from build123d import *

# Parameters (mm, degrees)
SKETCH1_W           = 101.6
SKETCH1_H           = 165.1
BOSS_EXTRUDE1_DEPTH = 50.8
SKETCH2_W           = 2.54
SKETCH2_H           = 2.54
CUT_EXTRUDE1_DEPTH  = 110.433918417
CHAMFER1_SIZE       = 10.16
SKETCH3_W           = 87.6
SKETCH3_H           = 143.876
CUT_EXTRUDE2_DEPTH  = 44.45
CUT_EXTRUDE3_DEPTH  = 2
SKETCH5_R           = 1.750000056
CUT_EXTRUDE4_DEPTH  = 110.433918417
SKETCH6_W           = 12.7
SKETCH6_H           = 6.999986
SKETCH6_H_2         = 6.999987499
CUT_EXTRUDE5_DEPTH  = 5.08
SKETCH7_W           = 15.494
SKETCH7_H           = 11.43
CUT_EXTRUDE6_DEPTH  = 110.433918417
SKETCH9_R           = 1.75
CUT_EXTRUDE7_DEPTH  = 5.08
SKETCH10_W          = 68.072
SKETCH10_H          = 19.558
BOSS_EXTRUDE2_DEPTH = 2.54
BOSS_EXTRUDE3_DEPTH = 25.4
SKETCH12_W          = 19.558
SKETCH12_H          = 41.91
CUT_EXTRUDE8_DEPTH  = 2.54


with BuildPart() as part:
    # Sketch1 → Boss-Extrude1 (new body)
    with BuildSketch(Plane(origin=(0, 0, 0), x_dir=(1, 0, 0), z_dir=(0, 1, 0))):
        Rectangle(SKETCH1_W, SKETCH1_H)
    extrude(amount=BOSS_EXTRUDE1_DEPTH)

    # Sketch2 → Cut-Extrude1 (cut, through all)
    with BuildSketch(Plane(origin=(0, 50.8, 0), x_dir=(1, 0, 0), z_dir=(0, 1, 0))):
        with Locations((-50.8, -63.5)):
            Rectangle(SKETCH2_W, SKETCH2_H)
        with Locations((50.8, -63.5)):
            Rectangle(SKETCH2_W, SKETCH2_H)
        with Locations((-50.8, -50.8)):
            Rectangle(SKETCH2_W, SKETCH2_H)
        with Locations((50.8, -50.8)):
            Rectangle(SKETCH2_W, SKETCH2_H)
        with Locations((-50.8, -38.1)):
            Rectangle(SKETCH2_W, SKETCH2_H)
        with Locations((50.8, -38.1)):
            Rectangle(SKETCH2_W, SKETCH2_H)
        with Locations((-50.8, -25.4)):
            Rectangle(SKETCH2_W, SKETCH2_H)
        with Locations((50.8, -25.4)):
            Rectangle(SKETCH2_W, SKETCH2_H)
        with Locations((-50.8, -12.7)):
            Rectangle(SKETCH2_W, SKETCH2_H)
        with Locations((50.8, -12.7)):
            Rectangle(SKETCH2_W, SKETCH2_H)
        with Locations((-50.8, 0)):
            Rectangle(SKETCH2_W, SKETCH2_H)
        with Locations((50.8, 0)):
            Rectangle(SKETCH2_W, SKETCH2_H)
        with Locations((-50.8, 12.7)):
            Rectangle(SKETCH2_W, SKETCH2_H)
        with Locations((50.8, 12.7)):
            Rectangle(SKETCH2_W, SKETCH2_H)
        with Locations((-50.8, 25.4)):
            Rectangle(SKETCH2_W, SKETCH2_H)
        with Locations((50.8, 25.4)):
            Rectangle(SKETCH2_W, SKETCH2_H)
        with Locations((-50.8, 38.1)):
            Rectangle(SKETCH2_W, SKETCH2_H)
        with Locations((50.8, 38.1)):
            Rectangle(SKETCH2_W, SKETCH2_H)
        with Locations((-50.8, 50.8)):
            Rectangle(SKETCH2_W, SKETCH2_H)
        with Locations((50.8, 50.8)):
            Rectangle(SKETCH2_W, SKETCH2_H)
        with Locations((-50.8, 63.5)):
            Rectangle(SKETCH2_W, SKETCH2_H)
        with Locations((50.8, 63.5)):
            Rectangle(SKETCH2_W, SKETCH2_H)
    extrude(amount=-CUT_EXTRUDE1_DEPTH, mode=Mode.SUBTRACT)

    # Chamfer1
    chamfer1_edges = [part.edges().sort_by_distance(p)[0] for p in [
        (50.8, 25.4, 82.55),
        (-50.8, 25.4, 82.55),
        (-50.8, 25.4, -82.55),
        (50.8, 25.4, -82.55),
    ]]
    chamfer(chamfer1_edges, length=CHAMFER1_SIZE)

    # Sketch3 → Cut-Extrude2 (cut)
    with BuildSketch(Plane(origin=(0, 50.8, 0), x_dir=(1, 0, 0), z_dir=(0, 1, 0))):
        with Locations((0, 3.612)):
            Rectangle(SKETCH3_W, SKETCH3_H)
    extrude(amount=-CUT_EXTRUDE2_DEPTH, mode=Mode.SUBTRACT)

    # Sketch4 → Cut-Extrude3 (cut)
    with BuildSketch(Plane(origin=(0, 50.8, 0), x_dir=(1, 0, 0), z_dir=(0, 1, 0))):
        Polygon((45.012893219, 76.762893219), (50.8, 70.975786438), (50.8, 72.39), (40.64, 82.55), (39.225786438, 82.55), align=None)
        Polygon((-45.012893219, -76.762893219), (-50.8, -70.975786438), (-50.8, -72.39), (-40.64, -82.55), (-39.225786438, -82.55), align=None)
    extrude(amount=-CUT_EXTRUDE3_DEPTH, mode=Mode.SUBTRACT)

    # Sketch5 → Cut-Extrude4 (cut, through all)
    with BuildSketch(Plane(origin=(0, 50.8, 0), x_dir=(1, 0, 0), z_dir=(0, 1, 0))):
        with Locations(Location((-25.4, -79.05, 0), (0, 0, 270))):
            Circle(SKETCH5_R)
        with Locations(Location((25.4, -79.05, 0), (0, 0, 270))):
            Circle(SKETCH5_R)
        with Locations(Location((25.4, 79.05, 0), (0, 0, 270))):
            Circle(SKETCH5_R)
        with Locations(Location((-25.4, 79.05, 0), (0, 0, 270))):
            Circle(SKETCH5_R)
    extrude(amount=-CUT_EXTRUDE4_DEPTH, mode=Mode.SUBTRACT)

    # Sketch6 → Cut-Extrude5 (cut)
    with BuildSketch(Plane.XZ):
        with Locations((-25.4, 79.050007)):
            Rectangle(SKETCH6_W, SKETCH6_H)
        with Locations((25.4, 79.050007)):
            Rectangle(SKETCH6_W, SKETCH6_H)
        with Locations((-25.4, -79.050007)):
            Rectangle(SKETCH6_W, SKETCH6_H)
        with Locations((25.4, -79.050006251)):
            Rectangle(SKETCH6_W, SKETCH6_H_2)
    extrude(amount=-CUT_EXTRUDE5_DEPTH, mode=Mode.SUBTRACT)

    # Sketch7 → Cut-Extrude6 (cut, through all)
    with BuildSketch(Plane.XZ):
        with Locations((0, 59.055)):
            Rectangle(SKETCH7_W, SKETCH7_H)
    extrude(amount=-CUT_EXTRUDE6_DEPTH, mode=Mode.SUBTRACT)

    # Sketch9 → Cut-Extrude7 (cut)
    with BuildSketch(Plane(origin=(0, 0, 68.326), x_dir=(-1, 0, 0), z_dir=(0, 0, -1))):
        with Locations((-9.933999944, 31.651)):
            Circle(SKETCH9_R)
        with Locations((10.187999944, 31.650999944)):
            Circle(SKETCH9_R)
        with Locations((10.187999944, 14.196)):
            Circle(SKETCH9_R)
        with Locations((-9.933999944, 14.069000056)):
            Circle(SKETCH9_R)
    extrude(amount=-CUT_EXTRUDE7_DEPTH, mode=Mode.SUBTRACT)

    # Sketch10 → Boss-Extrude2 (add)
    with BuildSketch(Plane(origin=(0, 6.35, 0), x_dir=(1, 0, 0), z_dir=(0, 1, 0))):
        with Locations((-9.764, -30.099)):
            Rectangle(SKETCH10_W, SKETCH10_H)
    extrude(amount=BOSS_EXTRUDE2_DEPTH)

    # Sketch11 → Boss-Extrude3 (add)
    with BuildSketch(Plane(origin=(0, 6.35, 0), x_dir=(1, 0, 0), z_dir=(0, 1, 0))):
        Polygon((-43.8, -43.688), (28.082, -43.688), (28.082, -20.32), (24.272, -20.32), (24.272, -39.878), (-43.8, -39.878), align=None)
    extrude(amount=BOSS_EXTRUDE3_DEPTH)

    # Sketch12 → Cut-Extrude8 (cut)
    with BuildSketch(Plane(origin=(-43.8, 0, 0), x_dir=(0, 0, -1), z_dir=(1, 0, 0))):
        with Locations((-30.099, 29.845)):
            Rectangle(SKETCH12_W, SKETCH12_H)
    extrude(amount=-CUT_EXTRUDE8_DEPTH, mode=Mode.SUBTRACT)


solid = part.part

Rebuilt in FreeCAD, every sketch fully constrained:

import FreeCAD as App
import Part
import Sketcher
from FreeCAD import Vector
Q = App.Units.Quantity


def edges_at(feature, points):
    """Names of the edges that pass closest to the given points."""
    edges = feature.Shape.Edges
    near = lambda p: min(range(len(edges)), key=lambda i: edges[i].distToShape(Part.Vertex(*p))[0])
    return sorted({f"Edge{near(p) + 1}" for p in points})


def add_polygon(sketch, points):
    """Adds a closed chain of lines whose ends are joined by coincident constraints."""
    first, n = sketch.GeometryCount, len(points)
    for a, b in zip(points, points[1:] + points[:1]):
        sketch.addGeometry(Part.LineSegment(App.Vector(*a, 0), App.Vector(*b, 0)), False)
    for i in range(n):
        sketch.addConstraint(Sketcher.Constraint("Coincident", first + i, 2, first + (i + 1) % n, 1))

doc = App.newDocument("Part")
body = doc.addObject("PartDesign::Body", "Body")

sketch1 = body.newObject("Sketcher::SketchObject", "Sketch")
sketch1.AttachmentSupport = (doc.getObject("XZ_Plane"), [""])
sketch1.MapMode = "FlatFace"
add_polygon(sketch1, [(-50.8, -82.55), (-50.8, 82.55), (50.8, 82.55), (50.8, -82.55)])
sketch1.addConstraint([
    Sketcher.Constraint("Vertical", 0),
    Sketcher.Constraint("Horizontal", 1),
    Sketcher.Constraint("Vertical", 2),
    Sketcher.Constraint("Horizontal", 3),
    Sketcher.Constraint("Symmetric", 0, 2, 2, 2, -1, 1),
    Sketcher.Constraint("DistanceX", 1, 1, 1, 2, Q("4 in")),
    Sketcher.Constraint("DistanceY", 0, 1, 0, 2, Q("6.5 in")),
])
pad1 = body.newObject("PartDesign::Pad", "Pad")
pad1.Profile = sketch1
pad1.Length = Q("2 in")
pad1.Reversed = True

sketch2 = body.newObject("Sketcher::SketchObject", "Sketch001")
sketch2.AttachmentSupport = (doc.getObject("XZ_Plane"), [""])
sketch2.MapMode = "FlatFace"
sketch2.AttachmentOffset = App.Placement(Vector(0, 0, -2 * 25.4), App.Rotation())
add_polygon(sketch2, [(-52.07, 62.23), (-52.07, 64.77), (-49.53, 64.77), (-49.53, 62.23)])
add_polygon(sketch2, [(49.53, 62.23), (49.53, 64.77), (52.07, 64.77), (52.07, 62.23)])
add_polygon(sketch2, [(-52.07, 49.53), (-52.07, 52.07), (-49.53, 52.07), (-49.53, 49.53)])
add_polygon(sketch2, [(49.53, 49.53), (49.53, 52.07), (52.07, 52.07), (52.07, 49.53)])
add_polygon(sketch2, [(-52.07, 36.83), (-52.07, 39.37), (-49.53, 39.37), (-49.53, 36.83)])
add_polygon(sketch2, [(49.53, 36.83), (49.53, 39.37), (52.07, 39.37), (52.07, 36.83)])
add_polygon(sketch2, [(-52.07, 24.13), (-52.07, 26.67), (-49.53, 26.67), (-49.53, 24.13)])
add_polygon(sketch2, [(49.53, 24.13), (49.53, 26.67), (52.07, 26.67), (52.07, 24.13)])
add_polygon(sketch2, [(-52.07, 11.43), (-52.07, 13.97), (-49.53, 13.97), (-49.53, 11.43)])
add_polygon(sketch2, [(49.53, 11.43), (49.53, 13.97), (52.07, 13.97), (52.07, 11.43)])
add_polygon(sketch2, [(-52.07, -1.27), (-52.07, 1.27), (-49.53, 1.27), (-49.53, -1.27)])
add_polygon(sketch2, [(49.53, -1.27), (49.53, 1.27), (52.07, 1.27), (52.07, -1.27)])
add_polygon(sketch2, [(-52.07, -13.97), (-52.07, -11.43), (-49.53, -11.43), (-49.53, -13.97)])
add_polygon(sketch2, [(49.53, -13.97), (49.53, -11.43), (52.07, -11.43), (52.07, -13.97)])
add_polygon(sketch2, [(-52.07, -26.67), (-52.07, -24.13), (-49.53, -24.13), (-49.53, -26.67)])
add_polygon(sketch2, [(49.53, -26.67), (49.53, -24.13), (52.07, -24.13), (52.07, -26.67)])
add_polygon(sketch2, [(-52.07, -39.37), (-52.07, -36.83), (-49.53, -36.83), (-49.53, -39.37)])
add_polygon(sketch2, [(49.53, -39.37), (49.53, -36.83), (52.07, -36.83), (52.07, -39.37)])
add_polygon(sketch2, [(-52.07, -52.07), (-52.07, -49.53), (-49.53, -49.53), (-49.53, -52.07)])
add_polygon(sketch2, [(49.53, -52.07), (49.53, -49.53), (52.07, -49.53), (52.07, -52.07)])
add_polygon(sketch2, [(-52.07, -64.77), (-52.07, -62.23), (-49.53, -62.23), (-49.53, -64.77)])
add_polygon(sketch2, [(49.53, -64.77), (49.53, -62.23), (52.07, -62.23), (52.07, -64.77)])
sketch2.addConstraint([
    Sketcher.Constraint("Vertical", 0),
    Sketcher.Constraint("Horizontal", 1),
    Sketcher.Constraint("Vertical", 2),
    Sketcher.Constraint("Horizontal", 3),
    Sketcher.Constraint("Vertical", 4),
    Sketcher.Constraint("Horizontal", 5),
    Sketcher.Constraint("Vertical", 6),
    Sketcher.Constraint("Horizontal", 7),
    Sketcher.Constraint("Vertical", 8),
    Sketcher.Constraint("Horizontal", 9),
    Sketcher.Constraint("Vertical", 10),
    Sketcher.Constraint("Horizontal", 11),
    Sketcher.Constraint("Vertical", 12),
    Sketcher.Constraint("Horizontal", 13),
    Sketcher.Constraint("Vertical", 14),
    Sketcher.Constraint("Horizontal", 15),
    Sketcher.Constraint("Vertical", 16),
    Sketcher.Constraint("Horizontal", 17),
    Sketcher.Constraint("Vertical", 18),
    Sketcher.Constraint("Horizontal", 19),
    Sketcher.Constraint("Vertical", 20),
    Sketcher.Constraint("Horizontal", 21),
    Sketcher.Constraint("Vertical", 22),
    Sketcher.Constraint("Horizontal", 23),
    Sketcher.Constraint("Vertical", 24),
    Sketcher.Constraint("Horizontal", 25),
    Sketcher.Constraint("Vertical", 26),
    Sketcher.Constraint("Horizontal", 27),
    Sketcher.Constraint("Vertical", 28),
    Sketcher.Constraint("Horizontal", 29),
    Sketcher.Constraint("Vertical", 30),
    Sketcher.Constraint("Horizontal", 31),
    Sketcher.Constraint("Vertical", 32),
    Sketcher.Constraint("Horizontal", 33),
    Sketcher.Constraint("Vertical", 34),
    Sketcher.Constraint("Horizontal", 35),
    Sketcher.Constraint("Vertical", 36),
    Sketcher.Constraint("Horizontal", 37),
    Sketcher.Constraint("Vertical", 38),
    Sketcher.Constraint("Horizontal", 39),
    Sketcher.Constraint("Vertical", 40),
    Sketcher.Constraint("Horizontal", 41),
    Sketcher.Constraint("Vertical", 42),
    Sketcher.Constraint("Horizontal", 43),
    Sketcher.Constraint("Vertical", 44),
    Sketcher.Constraint("Horizontal", 45),
    Sketcher.Constraint("Vertical", 46),
    Sketcher.Constraint("Horizontal", 47),
    Sketcher.Constraint("Vertical", 48),
    Sketcher.Constraint("Horizontal", 49),
    Sketcher.Constraint("Vertical", 50),
    Sketcher.Constraint("Horizontal", 51),
    Sketcher.Constraint("Vertical", 52),
    Sketcher.Constraint("Horizontal", 53),
    Sketcher.Constraint("Vertical", 54),
    Sketcher.Constraint("Horizontal", 55),
    Sketcher.Constraint("Vertical", 56),
    Sketcher.Constraint("Horizontal", 57),
    Sketcher.Constraint("Vertical", 58),
    Sketcher.Constraint("Horizontal", 59),
    Sketcher.Constraint("Vertical", 60),
    Sketcher.Constraint("Horizontal", 61),
    Sketcher.Constraint("Vertical", 62),
    Sketcher.Constraint("Horizontal", 63),
    Sketcher.Constraint("Vertical", 64),
    Sketcher.Constraint("Horizontal", 65),
    Sketcher.Constraint("Vertical", 66),
    Sketcher.Constraint("Horizontal", 67),
    Sketcher.Constraint("Vertical", 68),
    Sketcher.Constraint("Horizontal", 69),
    Sketcher.Constraint("Vertical", 70),
    Sketcher.Constraint("Horizontal", 71),
    Sketcher.Constraint("Vertical", 72),
    Sketcher.Constraint("Horizontal", 73),
    Sketcher.Constraint("Vertical", 74),
    Sketcher.Constraint("Horizontal", 75),
    Sketcher.Constraint("Vertical", 76),
    Sketcher.Constraint("Horizontal", 77),
    Sketcher.Constraint("Vertical", 78),
    Sketcher.Constraint("Horizontal", 79),
    Sketcher.Constraint("Vertical", 80),
    Sketcher.Constraint("Horizontal", 81),
    Sketcher.Constraint("Vertical", 82),
    Sketcher.Constraint("Horizontal", 83),
    Sketcher.Constraint("Vertical", 84),
    Sketcher.Constraint("Horizontal", 85),
    Sketcher.Constraint("Vertical", 86),
    Sketcher.Constraint("Horizontal", 87),
    Sketcher.Constraint("Symmetric", 42, 2, 44, 2, -1, 1),
    Sketcher.Constraint("Symmetric", 40, 2, 46, 2, -1, 1),
    Sketcher.Constraint("Symmetric", 38, 2, 48, 2, -1, 1),
    Sketcher.Constraint("Symmetric", 36, 2, 50, 2, -1, 1),
    Sketcher.Constraint("Symmetric", 34, 2, 52, 2, -1, 1),
    Sketcher.Constraint("Symmetric", 32, 2, 54, 2, -1, 1),
    Sketcher.Constraint("Symmetric", 30, 2, 56, 2, -1, 1),
    Sketcher.Constraint("Symmetric", 28, 2, 58, 2, -1, 1),
    Sketcher.Constraint("Symmetric", 26, 2, 60, 2, -1, 1),
    Sketcher.Constraint("Symmetric", 24, 2, 62, 2, -1, 1),
    Sketcher.Constraint("Symmetric", 22, 2, 64, 2, -1, 1),
    Sketcher.Constraint("Symmetric", 20, 2, 66, 2, -1, 1),
    Sketcher.Constraint("Symmetric", 18, 2, 68, 2, -1, 1),
    Sketcher.Constraint("Symmetric", 16, 2, 70, 2, -1, 1),
    Sketcher.Constraint("Symmetric", 14, 2, 72, 2, -1, 1),
    Sketcher.Constraint("Symmetric", 12, 2, 74, 2, -1, 1),
    Sketcher.Constraint("Symmetric", 10, 2, 76, 2, -1, 1),
    Sketcher.Constraint("Symmetric", 8, 2, 78, 2, -1, 1),
    Sketcher.Constraint("Symmetric", 6, 2, 80, 2, -1, 1),
    Sketcher.Constraint("Symmetric", 4, 2, 82, 2, -1, 1),
    Sketcher.Constraint("Symmetric", 2, 2, 84, 2, -1, 1),
    Sketcher.Constraint("Symmetric", 0, 2, 86, 2, -1, 1),
    Sketcher.Constraint("Symmetric", 1, 2, 4, 2, -2),
    Sketcher.Constraint("Symmetric", 3, 2, 6, 2, -2),
    Sketcher.Constraint("Symmetric", 9, 2, 12, 2, -2),
    Sketcher.Constraint("Symmetric", 11, 2, 14, 2, -2),
    Sketcher.Constraint("Symmetric", 17, 2, 20, 2, -2),
    Sketcher.Constraint("Symmetric", 19, 2, 22, 2, -2),
    Sketcher.Constraint("Symmetric", 25, 2, 28, 2, -2),
    Sketcher.Constraint("Symmetric", 27, 2, 30, 2, -2),
    Sketcher.Constraint("Symmetric", 33, 2, 36, 2, -2),
    Sketcher.Constraint("Symmetric", 35, 2, 38, 2, -2),
    Sketcher.Constraint("Horizontal", 41, 2, 44, 2),
    Sketcher.Constraint("Vertical", 3, 2, 8, 2),
    Sketcher.Constraint("Vertical", 2, 2, 9, 2),
    Sketcher.Constraint("Vertical", 11, 2, 16, 2),
    Sketcher.Constraint("Vertical", 10, 2, 17, 2),
    Sketcher.Constraint("Vertical", 19, 2, 24, 2),
    Sketcher.Constraint("Vertical", 18, 2, 25, 2),
    Sketcher.Constraint("Vertical", 27, 2, 32, 2),
    Sketcher.Constraint("Vertical", 26, 2, 33, 2),
    Sketcher.Constraint("Vertical", 35, 2, 40, 2),
    Sketcher.Constraint("Vertical", 34, 2, 41, 2),
    Sketcher.Constraint("Equal", 87, 0),
    Sketcher.Constraint("Equal", 6, 8),
    Sketcher.Constraint("Equal", 14, 16),
    Sketcher.Constraint("Equal", 22, 24),
    Sketcher.Constraint("Equal", 30, 32),
    Sketcher.Constraint("Equal", 38, 40),
    Sketcher.Constraint("DistanceX", 1, 1, 1, 2, Q("0.1 in")),
    Sketcher.Constraint("DistanceX", 0, 2, -1, 1, Q("2.05 in")),
    Sketcher.Constraint("DistanceY", -1, 1, 0, 2, Q("2.55 in")),
    Sketcher.Constraint("DistanceY", -1, 1, 8, 2, Q("2.05 in")),
    Sketcher.Constraint("DistanceY", -1, 1, 16, 2, Q("1.55 in")),
    Sketcher.Constraint("DistanceY", -1, 1, 24, 2, Q("1.05 in")),
    Sketcher.Constraint("DistanceY", -1, 1, 32, 2, Q("0.55 in")),
])
pocket1 = body.newObject("PartDesign::Pocket", "Pocket")
pocket1.Profile = sketch2
pocket1.Type = "ThroughAll"
pocket1.Reversed = True
doc.recompute()

chamfer = body.newObject("PartDesign::Chamfer", "Chamfer")
chamfer.Base = (pocket1, edges_at(pocket1, [
    (50.8, 25.4, 82.55),
    (-50.8, 25.4, 82.55),
    (-50.8, 25.4, -82.55),
    (50.8, 25.4, -82.55),
]))
chamfer.Size = Q("0.4 in")

sketch3 = body.newObject("Sketcher::SketchObject", "Sketch002")
sketch3.AttachmentSupport = (doc.getObject("XZ_Plane"), [""])
sketch3.MapMode = "FlatFace"
sketch3.AttachmentOffset = App.Placement(Vector(0, 0, -2 * 25.4), App.Rotation())
add_polygon(sketch3, [(-43.8, -75.55), (-43.8, 68.326), (43.8, 68.326), (43.8, -75.55)])
sketch3.addConstraint([
    Sketcher.Constraint("Vertical", 0),
    Sketcher.Constraint("Horizontal", 1),
    Sketcher.Constraint("Vertical", 2),
    Sketcher.Constraint("Horizontal", 3),
    Sketcher.Constraint("DistanceY", -1, 1, 0, 2, Q("2.69 in")),
    Sketcher.Constraint("DistanceX", 1, 1, 1, 2, Q("87.6 mm")),
    Sketcher.Constraint("DistanceY", 0, 1, 0, 2, Q("143.876 mm")),
    Sketcher.Constraint("DistanceX", 0, 2, -1, 1, Q("43.8 mm")),
])
pocket2 = body.newObject("PartDesign::Pocket", "Pocket001")
pocket2.Profile = sketch3
pocket2.Length = Q("1.75 in")
pocket2.Reversed = True

sketch4 = body.newObject("Sketcher::SketchObject", "Sketch003")
sketch4.AttachmentSupport = (doc.getObject("XZ_Plane"), [""])
sketch4.MapMode = "FlatFace"
sketch4.AttachmentOffset = App.Placement(Vector(0, 0, -2 * 25.4), App.Rotation())
add_polygon(sketch4, [(50.8, -70.975786), (50.8, -72.39), (40.64, -82.55), (39.225786, -82.55)])
add_polygon(sketch4, [(-50.8, 70.975786), (-50.8, 72.39), (-40.64, 82.55), (-39.225786, 82.55)])
sketch4.addConstraint([
    Sketcher.Constraint("Vertical", 0),
    Sketcher.Constraint("Horizontal", 2),
    Sketcher.Constraint("Vertical", 4),
    Sketcher.Constraint("Horizontal", 6),
    Sketcher.Constraint("Symmetric", 0, 2, 4, 2, -1, 1),
    Sketcher.Constraint("Symmetric", 1, 2, 5, 2, -1, 1),
    Sketcher.Constraint("Parallel", 1, 3),
    Sketcher.Constraint("Parallel", 5, 7),
    Sketcher.Constraint("Equal", 2, 6),
    Sketcher.Constraint("Equal", 6, 0),
    Sketcher.Constraint("DistanceX", -1, 1, 0, 2, Q("2 in")),
    Sketcher.Constraint("DistanceX", -1, 1, 1, 2, Q("1.6 in")),
    Sketcher.Constraint("DistanceY", 0, 2, 4, 2, Q("5.7 in")),
    Sketcher.Constraint("Distance", 3, Q("16.36841 mm")),
])
pocket3 = body.newObject("PartDesign::Pocket", "Pocket002")
pocket3.Profile = sketch4
pocket3.Length = 2
pocket3.Reversed = True

sketch5 = body.newObject("Sketcher::SketchObject", "Sketch004")
sketch5.AttachmentSupport = (doc.getObject("XZ_Plane"), [""])
sketch5.MapMode = "FlatFace"
sketch5.AttachmentOffset = App.Placement(Vector(0, 0, -2 * 25.4), App.Rotation())
sketch5.addGeometry([
    Part.Circle(Vector(-25.4, 79.05, 0), Vector(0, 0, 1), 1.75),
    Part.Circle(Vector(25.4, 79.05, 0), Vector(0, 0, 1), 1.75),
    Part.Circle(Vector(25.4, -79.05, 0), Vector(0, 0, 1), 1.75),
    Part.Circle(Vector(-25.4, -79.05, 0), Vector(0, 0, 1), 1.75),
], False)
sketch5.addConstraint([
    Sketcher.Constraint("Equal", 0, 1),
    Sketcher.Constraint("Equal", 1, 2),
    Sketcher.Constraint("Equal", 2, 3),
    Sketcher.Constraint("Symmetric", 0, 3, 2, 3, -1, 1),
    Sketcher.Constraint("Symmetric", 1, 3, 3, 3, -1, 1),
    Sketcher.Constraint("Symmetric", 0, 3, 1, 3, -2),
    Sketcher.Constraint("DistanceX", 0, 3, -1, 1, Q("1 in")),
    Sketcher.Constraint("Diameter", 0, Q("3.5 mm")),
    Sketcher.Constraint("DistanceY", -1, 1, 0, 3, Q("79.05 mm")),
])
pocket4 = body.newObject("PartDesign::Pocket", "Pocket003")
pocket4.Profile = sketch5
pocket4.Type = "ThroughAll"
pocket4.Reversed = True

sketch6 = body.newObject("Sketcher::SketchObject", "Sketch005")
sketch6.AttachmentSupport = (doc.getObject("XZ_Plane"), [""])
sketch6.MapMode = "FlatFace"
add_polygon(sketch6, [(-31.75, 82.55), (-31.75, 75.550014), (-19.05, 75.550014), (-19.05, 82.55)])
add_polygon(sketch6, [(19.05, 82.55), (19.05, 75.550014), (31.75, 75.550014), (31.75, 82.55)])
add_polygon(sketch6, [(-31.75, -75.550014), (-31.75, -82.55), (-19.05, -82.55), (-19.05, -75.550014)])
add_polygon(sketch6, [(19.05, -75.550013), (19.05, -82.55), (31.75, -82.55), (31.75, -75.550013)])
sketch6.addConstraint([
    Sketcher.Constraint("Vertical", 0),
    Sketcher.Constraint("Horizontal", 1),
    Sketcher.Constraint("Vertical", 2),
    Sketcher.Constraint("Horizontal", 3),
    Sketcher.Constraint("Vertical", 4),
    Sketcher.Constraint("Horizontal", 5),
    Sketcher.Constraint("Vertical", 6),
    Sketcher.Constraint("Horizontal", 7),
    Sketcher.Constraint("Vertical", 8),
    Sketcher.Constraint("Horizontal", 9),
    Sketcher.Constraint("Vertical", 10),
    Sketcher.Constraint("Horizontal", 11),
    Sketcher.Constraint("Vertical", 12),
    Sketcher.Constraint("Horizontal", 13),
    Sketcher.Constraint("Vertical", 14),
    Sketcher.Constraint("Horizontal", 15),
    Sketcher.Constraint("Symmetric", 6, 2, 8, 2, -1, 1),
    Sketcher.Constraint("Symmetric", 4, 2, 10, 2, -1, 1),
    Sketcher.Constraint("Symmetric", 2, 2, 12, 2, -1, 1),
    Sketcher.Constraint("Symmetric", 0, 2, 14, 2, -1, 1),
    Sketcher.Constraint("Symmetric", 1, 2, 4, 2, -2),
    Sketcher.Constraint("Symmetric", 3, 2, 6, 2, -2),
    Sketcher.Constraint("DistanceX", 1, 1, 1, 2, Q("0.5 in")),
    Sketcher.Constraint("DistanceX", 0, 2, 4, 2, Q("2 in")),
    Sketcher.Constraint("DistanceY", 8, 2, 3, 2, Q("6.5 in")),
    Sketcher.Constraint("DistanceY", 0, 2, 0, 1, Q("6.999986 mm")),
])
pocket5 = body.newObject("PartDesign::Pocket", "Pocket004")
pocket5.Profile = sketch6
pocket5.Length = Q("0.2 in")

sketch7 = body.newObject("Sketcher::SketchObject", "Sketch006")
sketch7.AttachmentSupport = (doc.getObject("XZ_Plane"), [""])
sketch7.MapMode = "FlatFace"
add_polygon(sketch7, [(-7.747, 64.77), (-7.747, 53.34), (7.747, 53.34), (7.747, 64.77)])
sketch7.addConstraint([
    Sketcher.Constraint("Vertical", 0),
    Sketcher.Constraint("Horizontal", 1),
    Sketcher.Constraint("Vertical", 2),
    Sketcher.Constraint("Horizontal", 3),
    Sketcher.Constraint("DistanceX", 1, 1, 1, 2, Q("0.61 in")),
    Sketcher.Constraint("DistanceY", 0, 2, 0, 1, Q("0.45 in")),
    Sketcher.Constraint("DistanceY", -1, 1, 0, 2, Q("2.1 in")),
    Sketcher.Constraint("DistanceX", 0, 2, -1, 1, Q("0.305 in")),
])
pocket6 = body.newObject("PartDesign::Pocket", "Pocket005")
pocket6.Profile = sketch7
pocket6.Type = "ThroughAll"

sketch8 = body.newObject("Sketcher::SketchObject", "Sketch007")
sketch8.AttachmentSupport = (doc.getObject("XY_Plane"), [""])
sketch8.MapMode = "FlatFace"
sketch8.AttachmentOffset = App.Placement(Vector(0, 0, 2.69 * 25.4), App.Rotation())
sketch8.addGeometry([
    Part.Circle(Vector(9.934, 31.651, 0), Vector(0, 0, 1), 1.75),
    Part.Circle(Vector(-10.188, 31.651, 0), Vector(0, 0, 1), 1.75),
    Part.Circle(Vector(-10.188, 14.196, 0), Vector(0, 0, 1), 1.75),
    Part.Circle(Vector(9.934, 14.069, 0), Vector(0, 0, 1), 1.75),
], False)
sketch8.addConstraint([
    Sketcher.Constraint("Equal", 0, 1),
    Sketcher.Constraint("Equal", 1, 2),
    Sketcher.Constraint("Equal", 2, 3),
    Sketcher.Constraint("Horizontal", 0, 3, 1, 3),
    Sketcher.Constraint("Vertical", 1, 3, 2, 3),
    Sketcher.Constraint("Vertical", 0, 3, 3, 3),
    Sketcher.Constraint("Diameter", 0, Q("3.5 mm")),
    Sketcher.Constraint("DistanceY", 3, 3, 2, 3, Q("0.005 in")),
    Sketcher.Constraint("DistanceX", -1, 1, 0, 3, Q("9.934 mm")),
    Sketcher.Constraint("DistanceY", -1, 1, 0, 3, Q("31.651 mm")),
    Sketcher.Constraint("DistanceX", 1, 3, -1, 1, Q("10.188 mm")),
    Sketcher.Constraint("DistanceY", -1, 1, 2, 3, Q("14.196 mm")),
])
pocket7 = body.newObject("PartDesign::Pocket", "Pocket006")
pocket7.Profile = sketch8
pocket7.Length = Q("0.2 in")
pocket7.Reversed = True

sketch9 = body.newObject("Sketcher::SketchObject", "Sketch008")
sketch9.AttachmentSupport = (doc.getObject("XZ_Plane"), [""])
sketch9.MapMode = "FlatFace"
sketch9.AttachmentOffset = App.Placement(Vector(0, 0, -0.25 * 25.4), App.Rotation())
add_polygon(sketch9, [(-43.8, 20.32), (-43.8, 39.878), (24.272, 39.878), (24.272, 20.32)])
sketch9.addConstraint([
    Sketcher.Constraint("Vertical", 0),
    Sketcher.Constraint("Horizontal", 1),
    Sketcher.Constraint("Vertical", 2),
    Sketcher.Constraint("Horizontal", 3),
    Sketcher.Constraint("DistanceX", 1, 1, 1, 2, Q("2.68 in")),
    Sketcher.Constraint("DistanceY", 0, 1, 0, 2, Q("0.77 in")),
    Sketcher.Constraint("DistanceY", -1, 1, 2, 2, Q("0.8 in")),
    Sketcher.Constraint("DistanceX", 0, 2, -1, 1, Q("43.8 mm")),
])
pad2 = body.newObject("PartDesign::Pad", "Pad001")
pad2.Profile = sketch9
pad2.Length = Q("0.1 in")
pad2.Reversed = True

sketch10 = body.newObject("Sketcher::SketchObject", "Sketch009")
sketch10.AttachmentSupport = (doc.getObject("XZ_Plane"), [""])
sketch10.MapMode = "FlatFace"
sketch10.AttachmentOffset = App.Placement(Vector(0, 0, -0.25 * 25.4), App.Rotation())
add_polygon(sketch10, [(-43.8, 43.688), (28.082, 43.688), (28.082, 20.32), (24.272, 20.32), (24.272, 39.878), (-43.8, 39.878)])
sketch10.addConstraint([
    Sketcher.Constraint("Horizontal", 0),
    Sketcher.Constraint("Vertical", 1),
    Sketcher.Constraint("Horizontal", 2),
    Sketcher.Constraint("Vertical", 3),
    Sketcher.Constraint("Horizontal", 4),
    Sketcher.Constraint("Vertical", 5),
    Sketcher.Constraint("Equal", 2, 5),
    Sketcher.Constraint("DistanceX", 0, 1, 0, 2, Q("2.83 in")),
    Sketcher.Constraint("DistanceX", 2, 2, 2, 1, Q("0.15 in")),
    Sketcher.Constraint("DistanceY", 1, 2, 1, 1, Q("0.92 in")),
    Sketcher.Constraint("DistanceY", -1, 1, 1, 2, Q("0.8 in")),
    Sketcher.Constraint("DistanceX", -1, 1, 0, 2, Q("28.082 mm")),
])
pad3 = body.newObject("PartDesign::Pad", "Pad002")
pad3.Profile = sketch10
pad3.Length = Q("1 in")
pad3.Reversed = True

sketch11 = body.newObject("Sketcher::SketchObject", "Sketch010")
sketch11.AttachmentSupport = (doc.getObject("YZ_Plane"), [""])
sketch11.MapMode = "FlatFace"
sketch11.AttachmentOffset = App.Placement(Vector(0, 0, -43.8), App.Rotation())
add_polygon(sketch11, [(50.8, 39.878), (8.89, 39.878), (8.89, 20.32), (50.8, 20.32)])
sketch11.addConstraint([
    Sketcher.Constraint("Horizontal", 0),
    Sketcher.Constraint("Vertical", 1),
    Sketcher.Constraint("Horizontal", 2),
    Sketcher.Constraint("Vertical", 3),
    Sketcher.Constraint("DistanceX", -1, 1, 2, 2, Q("2 in")),
    Sketcher.Constraint("DistanceX", 0, 2, 0, 1, Q("1.65 in")),
    Sketcher.Constraint("DistanceY", 1, 2, 1, 1, Q("0.77 in")),
    Sketcher.Constraint("DistanceY", -1, 1, 1, 2, Q("0.8 in")),
])
pocket8 = body.newObject("PartDesign::Pocket", "Pocket007")
pocket8.Profile = sketch11
pocket8.Length = Q("0.1 in")

doc.recompute()
